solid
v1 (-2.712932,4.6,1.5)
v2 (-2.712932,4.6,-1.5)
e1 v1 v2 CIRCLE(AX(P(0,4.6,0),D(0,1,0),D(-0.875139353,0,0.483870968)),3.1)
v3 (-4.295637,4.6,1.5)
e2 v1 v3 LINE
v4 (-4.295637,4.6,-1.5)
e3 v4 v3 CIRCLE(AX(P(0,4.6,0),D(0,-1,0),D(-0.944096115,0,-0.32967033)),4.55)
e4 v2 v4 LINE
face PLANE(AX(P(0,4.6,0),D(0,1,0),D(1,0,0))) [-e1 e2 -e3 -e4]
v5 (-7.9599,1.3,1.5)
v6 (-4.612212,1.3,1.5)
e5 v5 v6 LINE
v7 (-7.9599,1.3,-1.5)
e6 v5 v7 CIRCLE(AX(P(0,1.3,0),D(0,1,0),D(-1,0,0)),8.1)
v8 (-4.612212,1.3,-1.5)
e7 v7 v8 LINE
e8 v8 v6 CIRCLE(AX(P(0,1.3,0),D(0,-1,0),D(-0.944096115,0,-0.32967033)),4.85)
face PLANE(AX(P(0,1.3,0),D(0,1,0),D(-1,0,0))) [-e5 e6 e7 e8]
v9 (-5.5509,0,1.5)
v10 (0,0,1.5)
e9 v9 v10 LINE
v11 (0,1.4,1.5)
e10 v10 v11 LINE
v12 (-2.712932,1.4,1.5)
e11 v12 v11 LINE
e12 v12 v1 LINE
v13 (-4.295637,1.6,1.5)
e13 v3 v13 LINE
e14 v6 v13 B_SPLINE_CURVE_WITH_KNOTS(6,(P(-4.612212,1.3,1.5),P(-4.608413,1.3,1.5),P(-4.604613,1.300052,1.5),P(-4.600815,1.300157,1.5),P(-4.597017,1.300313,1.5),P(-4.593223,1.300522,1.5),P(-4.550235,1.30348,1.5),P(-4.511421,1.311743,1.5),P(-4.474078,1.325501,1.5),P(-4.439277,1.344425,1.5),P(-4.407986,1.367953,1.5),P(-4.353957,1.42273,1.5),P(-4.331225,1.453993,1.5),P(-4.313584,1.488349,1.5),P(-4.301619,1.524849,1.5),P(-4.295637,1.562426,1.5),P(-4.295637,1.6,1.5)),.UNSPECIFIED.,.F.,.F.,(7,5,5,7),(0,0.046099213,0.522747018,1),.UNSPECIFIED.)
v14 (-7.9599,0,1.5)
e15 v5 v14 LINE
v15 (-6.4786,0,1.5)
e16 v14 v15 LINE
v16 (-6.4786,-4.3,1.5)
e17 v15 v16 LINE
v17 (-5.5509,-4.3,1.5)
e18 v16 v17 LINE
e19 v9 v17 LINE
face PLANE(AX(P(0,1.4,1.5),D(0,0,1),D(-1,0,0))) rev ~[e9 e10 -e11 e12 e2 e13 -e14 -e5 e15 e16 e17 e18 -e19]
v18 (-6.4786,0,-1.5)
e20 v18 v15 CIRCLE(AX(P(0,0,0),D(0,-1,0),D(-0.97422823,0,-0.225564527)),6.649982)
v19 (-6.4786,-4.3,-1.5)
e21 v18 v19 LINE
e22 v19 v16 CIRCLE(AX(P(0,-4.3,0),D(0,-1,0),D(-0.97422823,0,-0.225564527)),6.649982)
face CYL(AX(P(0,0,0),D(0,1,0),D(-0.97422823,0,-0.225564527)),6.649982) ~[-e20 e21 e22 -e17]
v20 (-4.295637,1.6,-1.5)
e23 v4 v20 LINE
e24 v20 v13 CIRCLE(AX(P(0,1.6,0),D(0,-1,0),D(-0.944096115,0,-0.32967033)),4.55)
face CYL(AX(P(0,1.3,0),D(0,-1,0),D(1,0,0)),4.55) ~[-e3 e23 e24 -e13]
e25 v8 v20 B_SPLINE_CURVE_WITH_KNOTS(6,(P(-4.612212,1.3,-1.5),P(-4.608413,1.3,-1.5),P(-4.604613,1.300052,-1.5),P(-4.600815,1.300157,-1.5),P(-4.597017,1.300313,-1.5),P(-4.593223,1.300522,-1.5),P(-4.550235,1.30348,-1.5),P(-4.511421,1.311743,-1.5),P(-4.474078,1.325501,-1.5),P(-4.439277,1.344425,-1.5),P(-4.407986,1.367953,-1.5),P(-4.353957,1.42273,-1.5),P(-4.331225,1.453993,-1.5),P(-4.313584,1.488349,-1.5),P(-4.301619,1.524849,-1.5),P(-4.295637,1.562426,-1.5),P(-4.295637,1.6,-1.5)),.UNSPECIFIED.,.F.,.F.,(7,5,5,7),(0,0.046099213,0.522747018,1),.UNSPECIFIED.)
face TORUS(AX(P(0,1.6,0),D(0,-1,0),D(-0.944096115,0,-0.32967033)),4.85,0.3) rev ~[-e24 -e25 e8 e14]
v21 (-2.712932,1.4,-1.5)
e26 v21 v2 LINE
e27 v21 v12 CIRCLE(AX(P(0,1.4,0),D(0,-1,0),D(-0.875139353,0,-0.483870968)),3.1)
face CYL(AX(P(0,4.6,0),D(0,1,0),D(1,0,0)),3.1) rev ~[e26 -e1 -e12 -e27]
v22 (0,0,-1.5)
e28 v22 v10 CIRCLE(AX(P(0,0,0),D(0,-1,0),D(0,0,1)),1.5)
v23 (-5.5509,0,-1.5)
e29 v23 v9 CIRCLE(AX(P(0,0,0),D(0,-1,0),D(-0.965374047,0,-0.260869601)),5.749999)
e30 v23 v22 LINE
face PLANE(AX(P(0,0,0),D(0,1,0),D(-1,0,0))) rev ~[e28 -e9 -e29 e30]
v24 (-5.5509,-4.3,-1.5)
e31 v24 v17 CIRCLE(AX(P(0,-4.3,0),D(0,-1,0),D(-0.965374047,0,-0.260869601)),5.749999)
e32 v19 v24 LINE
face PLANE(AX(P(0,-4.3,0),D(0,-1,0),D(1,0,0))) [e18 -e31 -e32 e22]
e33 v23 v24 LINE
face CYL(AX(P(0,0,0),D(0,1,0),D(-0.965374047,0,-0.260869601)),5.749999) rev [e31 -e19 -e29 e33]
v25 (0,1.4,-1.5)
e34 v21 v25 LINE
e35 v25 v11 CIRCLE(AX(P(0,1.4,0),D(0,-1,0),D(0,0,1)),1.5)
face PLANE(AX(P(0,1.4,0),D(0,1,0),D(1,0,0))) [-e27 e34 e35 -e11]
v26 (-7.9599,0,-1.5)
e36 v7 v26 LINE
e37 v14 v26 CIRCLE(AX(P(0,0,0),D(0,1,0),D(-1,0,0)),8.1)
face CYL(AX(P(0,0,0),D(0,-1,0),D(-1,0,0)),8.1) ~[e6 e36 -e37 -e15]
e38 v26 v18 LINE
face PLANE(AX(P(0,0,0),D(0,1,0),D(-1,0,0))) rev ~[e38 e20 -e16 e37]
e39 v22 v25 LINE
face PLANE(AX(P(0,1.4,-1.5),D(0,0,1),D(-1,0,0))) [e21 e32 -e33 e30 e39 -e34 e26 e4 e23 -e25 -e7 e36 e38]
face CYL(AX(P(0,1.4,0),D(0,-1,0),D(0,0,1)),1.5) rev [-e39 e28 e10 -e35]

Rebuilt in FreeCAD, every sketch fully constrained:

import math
import FreeCAD as App
import Part
import Sketcher


def edges_at(feature, points):
    """Names of the edges that pass closest to the given points."""
    edges = feature.Shape.Edges
    near = lambda p: min(range(len(edges)), key=lambda i: edges[i].distToShape(Part.Vertex(*p))[0])
    return sorted({f"Edge{near(p) + 1}" for p in points})

doc = App.newDocument("Part")
body = doc.addObject("PartDesign::Body", "Body")

sketch1 = body.newObject("Sketcher::SketchObject", "Sketch")
sketch1.AttachmentSupport = (doc.getObject("XZ_Plane"), [""])
sketch1.MapMode = "FlatFace"
sketch1.addGeometry(Part.Circle(App.Vector(0, 0, 0), App.Vector(0, 0, 1), 8), False)
sketch1.addConstraint(Sketcher.Constraint("Coincident", 0, 3, -1, 1))
sketch1.addConstraint(Sketcher.Constraint("Diameter", 0, 16.2))
pad1 = body.newObject("PartDesign::Pad", "Pad")
pad1.Profile = sketch1
pad1.Length = 1.3
pad1.Reversed = True

sketch2 = body.newObject("Sketcher::SketchObject", "Sketch001")
sketch2.AttachmentSupport = (doc.getObject("XZ_Plane"), [""])
sketch2.MapMode = "FlatFace"
sketch2.AttachmentOffset = App.Placement(App.Vector(0, 0, -1.3), App.Rotation())
sketch2.addGeometry(Part.Circle(App.Vector(0, 0, 0), App.Vector(0, 0, 1), 4.5), False)
sketch2.addConstraint(Sketcher.Constraint("Coincident", 0, 3, -1, 1))
sketch2.addConstraint(Sketcher.Constraint("Diameter", 0, 9.1))
pad2 = body.newObject("PartDesign::Pad", "Pad001")
pad2.Profile = sketch2
pad2.Length = 3.3
pad2.Reversed = True

sketch3 = body.newObject("Sketcher::SketchObject", "Sketch002")
sketch3.AttachmentSupport = (doc.getObject("XZ_Plane"), [""])
sketch3.MapMode = "FlatFace"
sketch3.AttachmentOffset = App.Placement(App.Vector(0, 0, -4.6), App.Rotation())
sketch3.addGeometry(Part.Circle(App.Vector(0, 0, 0), App.Vector(0, 0, 1), 3.1), False)
sketch3.addConstraint(Sketcher.Constraint("Coincident", 0, 3, -1, 1))
sketch3.addConstraint(Sketcher.Constraint("Diameter", 0, 6.2))
pocket1 = body.newObject("PartDesign::Pocket", "Pocket")
pocket1.Profile = sketch3
pocket1.Length = 3.2
pocket1.Reversed = True

sketch4 = body.newObject("Sketcher::SketchObject", "Sketch003")
sketch4.AttachmentSupport = (doc.getObject("XZ_Plane"), [""])
sketch4.MapMode = "FlatFace"
sketch4.AttachmentOffset = App.Placement(App.Vector(0, 0, -1.4), App.Rotation())
sketch4.addGeometry(Part.LineSegment(App.Vector(-8, 1.5, 0), App.Vector(0, 1.5, 0)), False)
sketch4.addGeometry(Part.ArcOfCircle(Part.Circle(App.Vector(0, 0, 0), App.Vector(0, 0, 1), 1.5), math.radians(-90), math.radians(90)), False)
sketch4.addGeometry(Part.LineSegment(App.Vector(0, -1.5, 0), App.Vector(-8, -1.5, 0)), False)
sketch4.addGeometry(Part.ArcOfCircle(Part.Circle(App.Vector(0, 0, 0), App.Vector(0, 0, 1), 8.1), math.radians(169), math.radians(191)), False)
sketch4.addConstraint(Sketcher.Constraint("Tangent", 0, 2, 1, 2))
sketch4.addConstraint(Sketcher.Constraint("Tangent", 1, 1, 2, 1))
sketch4.addConstraint(Sketcher.Constraint("Coincident", 2, 2, 3, 2))
sketch4.addConstraint(Sketcher.Constraint("Coincident", 3, 1, 0, 1))
sketch4.addConstraint(Sketcher.Constraint("Horizontal", 0))
sketch4.addConstraint(Sketcher.Constraint("Horizontal", 2))
sketch4.addConstraint(Sketcher.Constraint("Coincident", 1, 3, -1, 1))
sketch4.addConstraint(Sketcher.Constraint("Coincident", 3, 3, -1, 1))
sketch4.addConstraint(Sketcher.Constraint("Radius", 1, 1.5))
sketch4.addConstraint(Sketcher.Constraint("Radius", 3, 8.1))
pocket2 = body.newObject("PartDesign::Pocket", "Pocket001")
pocket2.Profile = sketch4
pocket2.Type = "ThroughAll"
pocket2.Midplane = True
doc.recompute()

fillet = body.newObject("PartDesign::Fillet", "Fillet")
fillet.Base = (pocket2, edges_at(pocket2, [(4.55, 1.3, 0)]))
fillet.Radius = 0.3

sketch5 = body.newObject("Sketcher::SketchObject", "Sketch004")
sketch5.AttachmentSupport = (doc.getObject("XZ_Plane"), [""])
sketch5.MapMode = "FlatFace"
sketch5.addGeometry(Part.LineSegment(App.Vector(-5.6, -1.5, 0), App.Vector(-6.5, -1.5, 0)), False)
sketch5.addGeometry(Part.ArcOfCircle(Part.Circle(App.Vector(0, 0, 0), App.Vector(0, 0, 1), 6.6), math.radians(-167), math.radians(167)), False)
sketch5.addGeometry(Part.LineSegment(App.Vector(-6.5, 1.5, 0), App.Vector(-5.6, 1.5, 0)), False)
sketch5.addGeometry(Part.ArcOfCircle(Part.Circle(App.Vector(0, 0, 0), App.Vector(0, 0, 1), 5.7), math.radians(-165), math.radians(165)), False)
sketch5.addConstraint(Sketcher.Constraint("Coincident", 0, 2, 1, 1))
sketch5.addConstraint(Sketcher.Constraint("Coincident", 1, 2, 2, 1))
sketch5.addConstraint(Sketcher.Constraint("Coincident", 2, 2, 3, 2))
sketch5.addConstraint(Sketcher.Constraint("Coincident", 3, 1, 0, 1))
sketch5.addConstraint(Sketcher.Constraint("Horizontal", 0))
sketch5.addConstraint(Sketcher.Constraint("Horizontal", 2))
sketch5.addConstraint(Sketcher.Constraint("Coincident", 1, 3, -1, 1))
sketch5.addConstraint(Sketcher.Constraint("Coincident", 3, 3, -1, 1))
sketch5.addConstraint(Sketcher.Constraint("Vertical", 0, 2, 1, 2))
sketch5.addConstraint(Sketcher.Constraint("Radius", 1, 6.65))
sketch5.addConstraint(Sketcher.Constraint("Radius", 3, 5.75))
sketch5.addConstraint(Sketcher.Constraint("DistanceY", 0, 2, 1, 2, 3.0))
pad3 = body.newObject("PartDesign::Pad", "Pad002")
pad3.Profile = sketch5
pad3.Length = 4.3

doc.recompute()
